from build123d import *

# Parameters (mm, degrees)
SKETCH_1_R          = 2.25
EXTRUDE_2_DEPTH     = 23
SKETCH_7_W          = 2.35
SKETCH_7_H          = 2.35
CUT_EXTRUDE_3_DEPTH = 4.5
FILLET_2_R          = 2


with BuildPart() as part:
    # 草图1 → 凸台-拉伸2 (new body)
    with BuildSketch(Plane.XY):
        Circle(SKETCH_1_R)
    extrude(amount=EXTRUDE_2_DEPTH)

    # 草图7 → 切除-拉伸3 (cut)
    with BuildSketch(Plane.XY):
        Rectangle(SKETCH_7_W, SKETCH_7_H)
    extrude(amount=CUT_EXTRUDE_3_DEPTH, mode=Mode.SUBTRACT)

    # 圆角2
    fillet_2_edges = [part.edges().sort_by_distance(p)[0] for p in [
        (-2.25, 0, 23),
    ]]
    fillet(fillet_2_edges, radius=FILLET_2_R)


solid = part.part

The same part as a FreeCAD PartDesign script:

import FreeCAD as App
import Part
import Sketcher

V = App.Vector
Q = App.Units.Quantity


def edges_at(feature, points):
    """Names of the edges that pass closest to the given points."""
    edges = feature.Shape.Edges
    near = lambda p: min(range(len(edges)), key=lambda i: edges[i].distToShape(Part.Vertex(*p))[0])
    return sorted({f"Edge{near(p) + 1}" for p in points})

doc = App.newDocument("Part")
body = doc.addObject("PartDesign::Body", "Body")

# Sketch on XY plane
sketch1 = doc.addObject("Sketcher::SketchObject", "Sketch")
body.addObject(sketch1)
sketch1.AttachmentSupport = (doc.XY_Plane, [""])
sketch1.MapMode = "FlatFace"
sketch1.addGeometry(Part.Circle(V(0, 0, 0), V(0, 0, 1), 2.25), False)
sketch1.addConstraint(Sketcher.Constraint("Coincident", 0, 3, -1, 1))
sketch1.addConstraint(Sketcher.Constraint("Diameter", 0, Q("4.5 mm")))
pad1 = doc.addObject("PartDesign::Pad", "Pad")
body.addObject(pad1)
pad1.Profile = sketch1
pad1.Length = 23

# Sketch on XY plane
sketch2 = doc.addObject("Sketcher::SketchObject", "Sketch001")
body.addObject(sketch2)
sketch2.AttachmentSupport = (doc.XY_Plane, [""])
sketch2.MapMode = "FlatFace"
sketch2.addGeometry(Part.LineSegment(V(-1.175, 1.175, 0), V(-1.175, -1.175, 0)), False)
sketch2.addGeometry(Part.LineSegment(V(-1.175, -1.175, 0), V(1.175, -1.175, 0)), False)
sketch2.addGeometry(Part.LineSegment(V(1.175, -1.175, 0), V(1.175, 1.175, 0)), False)
sketch2.addGeometry(Part.LineSegment(V(1.175, 1.175, 0), V(-1.175, 1.175, 0)), False)
sketch2.addConstraint(Sketcher.Constraint("Coincident", 0, 2, 1, 1))
sketch2.addConstraint(Sketcher.Constraint("Coincident", 1, 2, 2, 1))
sketch2.addConstraint(Sketcher.Constraint("Coincident", 2, 2, 3, 1))
sketch2.addConstraint(Sketcher.Constraint("Coincident", 3, 2, 0, 1))
sketch2.addConstraint(Sketcher.Constraint("Vertical", 0))
sketch2.addConstraint(Sketcher.Constraint("Horizontal", 1))
sketch2.addConstraint(Sketcher.Constraint("Vertical", 2))
sketch2.addConstraint(Sketcher.Constraint("Horizontal", 3))
sketch2.addConstraint(Sketcher.Constraint("Symmetric", 0, 2, 2, 2, -1, 1))
sketch2.addConstraint(Sketcher.Constraint("Equal", 3, 0))
sketch2.addConstraint(Sketcher.Constraint("DistanceX", 1, 1, 1, 2, Q("2.35 mm")))
pocket1 = doc.addObject("PartDesign::Pocket", "Pocket")
body.addObject(pocket1)
pocket1.Profile = sketch2
pocket1.Length = 4.5
pocket1.Reversed = True
doc.recompute()

fillet = doc.addObject("PartDesign::Fillet", "Fillet")
body.addObject(fillet)
fillet.Base = (pocket1, edges_at(pocket1, [(-2.25, 0, 23)]))
fillet.Radius = 2

doc.recompute()
